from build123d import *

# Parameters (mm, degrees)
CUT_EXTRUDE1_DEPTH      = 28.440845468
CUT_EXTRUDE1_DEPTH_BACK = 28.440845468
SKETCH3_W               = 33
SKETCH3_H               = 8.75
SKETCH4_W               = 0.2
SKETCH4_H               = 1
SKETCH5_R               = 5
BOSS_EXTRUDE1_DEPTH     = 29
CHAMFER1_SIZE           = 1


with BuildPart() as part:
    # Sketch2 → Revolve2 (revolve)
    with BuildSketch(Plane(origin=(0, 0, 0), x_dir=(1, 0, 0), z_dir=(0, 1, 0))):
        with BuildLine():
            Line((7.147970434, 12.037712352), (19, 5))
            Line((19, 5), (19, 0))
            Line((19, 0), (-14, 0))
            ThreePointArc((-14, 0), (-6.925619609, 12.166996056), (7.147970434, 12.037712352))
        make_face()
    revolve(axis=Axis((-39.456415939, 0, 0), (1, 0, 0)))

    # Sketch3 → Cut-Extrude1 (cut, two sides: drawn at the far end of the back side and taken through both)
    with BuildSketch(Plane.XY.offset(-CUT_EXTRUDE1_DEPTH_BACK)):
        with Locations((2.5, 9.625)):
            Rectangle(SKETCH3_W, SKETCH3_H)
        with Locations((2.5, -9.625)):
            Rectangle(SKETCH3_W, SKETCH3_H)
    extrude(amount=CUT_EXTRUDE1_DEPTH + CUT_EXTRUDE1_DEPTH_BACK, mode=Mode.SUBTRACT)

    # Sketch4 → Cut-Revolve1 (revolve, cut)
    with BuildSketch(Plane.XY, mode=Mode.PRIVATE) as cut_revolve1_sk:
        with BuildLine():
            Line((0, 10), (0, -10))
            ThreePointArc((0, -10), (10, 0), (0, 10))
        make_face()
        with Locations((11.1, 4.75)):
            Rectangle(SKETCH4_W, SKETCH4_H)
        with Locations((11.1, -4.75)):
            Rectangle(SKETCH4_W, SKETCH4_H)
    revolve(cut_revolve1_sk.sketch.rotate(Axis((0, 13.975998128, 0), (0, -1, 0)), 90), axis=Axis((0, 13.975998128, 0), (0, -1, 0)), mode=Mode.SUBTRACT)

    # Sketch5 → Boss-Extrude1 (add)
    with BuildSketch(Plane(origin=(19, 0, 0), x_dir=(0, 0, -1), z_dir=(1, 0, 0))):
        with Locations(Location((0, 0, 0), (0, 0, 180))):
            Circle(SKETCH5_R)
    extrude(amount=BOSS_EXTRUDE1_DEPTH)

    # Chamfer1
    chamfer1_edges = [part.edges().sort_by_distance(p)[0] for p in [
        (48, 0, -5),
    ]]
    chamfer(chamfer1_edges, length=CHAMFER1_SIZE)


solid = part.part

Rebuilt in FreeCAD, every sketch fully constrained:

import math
import FreeCAD as App
import Part
import Sketcher
Q = App.Units.Quantity


def edges_at(feature, points):
    """Names of the edges that pass closest to the given points."""
    edges = feature.Shape.Edges
    near = lambda p: min(range(len(edges)), key=lambda i: edges[i].distToShape(Part.Vertex(*p))[0])
    return sorted({f"Edge{near(p) + 1}" for p in points})

doc = App.newDocument("Part")
body = doc.addObject("PartDesign::Body", "Body")

sketch1 = doc.addObject("Sketcher::SketchObject", "Sketch")
body.addObject(sketch1)
sketch1.AttachmentSupport = (doc.XZ_Plane, [""])
sketch1.MapMode = "FlatFace"
sketch1.addGeometry([
    Part.LineSegment(App.Vector(19, -5, 0), App.Vector(7, -12, 0)),
    Part.ArcOfCircle(Part.Circle(App.Vector(0, 0, 0), App.Vector(0, 0, 1), 14), math.radians(180), math.radians(301)),
    Part.LineSegment(App.Vector(-14, 0, 0), App.Vector(19, 0, 0)),
    Part.LineSegment(App.Vector(19, 0, 0), App.Vector(19, -5, 0)),
], False)
sketch1.addConstraint([
    Sketcher.Constraint("Tangent", 0, 2, 1, 2),
    Sketcher.Constraint("Coincident", 1, 1, 2, 1),
    Sketcher.Constraint("Coincident", 2, 2, 3, 1),
    Sketcher.Constraint("Coincident", 3, 2, 0, 1),
    Sketcher.Constraint("Horizontal", 2),
    Sketcher.Constraint("Vertical", 3),
    Sketcher.Constraint("Coincident", 1, 3, -1, 1),
    Sketcher.Constraint("PointOnObject", 1, 1, -1),
    Sketcher.Constraint("Radius", 1, Q("14 mm")),
    Sketcher.Constraint("DistanceX", 2, 1, 2, 2, Q("33 mm")),
    Sketcher.Constraint("DistanceY", 3, 2, 3, 1, Q("5 mm")),
])
revolution = doc.addObject("PartDesign::Revolution", "Revolution")
body.addObject(revolution)
revolution.Profile = sketch1
revolution.ReferenceAxis = (sketch1, ["H_Axis"])
revolution.Angle = 360

sketch2 = doc.addObject("Sketcher::SketchObject", "Sketch001")
body.addObject(sketch2)
sketch2.AttachmentSupport = (doc.XY_Plane, [""])
sketch2.MapMode = "FlatFace"
sketch2.addGeometry([
    Part.LineSegment(App.Vector(-14, 14, 0), App.Vector(-14, 5, 0)),
    Part.LineSegment(App.Vector(-14, 5, 0), App.Vector(19, 5, 0)),
    Part.LineSegment(App.Vector(19, 5, 0), App.Vector(19, 14, 0)),
    Part.LineSegment(App.Vector(19, 14, 0), App.Vector(-14, 14, 0)),
    Part.LineSegment(App.Vector(-14, -5, 0), App.Vector(-14, -14, 0)),
    Part.LineSegment(App.Vector(-14, -14, 0), App.Vector(19, -14, 0)),
    Part.LineSegment(App.Vector(19, -14, 0), App.Vector(19, -5, 0)),
    Part.LineSegment(App.Vector(19, -5, 0), App.Vector(-14, -5, 0)),
], False)
sketch2.addConstraint([
    Sketcher.Constraint("Coincident", 0, 2, 1, 1),
    Sketcher.Constraint("Coincident", 1, 2, 2, 1),
    Sketcher.Constraint("Coincident", 2, 2, 3, 1),
    Sketcher.Constraint("Coincident", 3, 2, 0, 1),
    Sketcher.Constraint("Coincident", 4, 2, 5, 1),
    Sketcher.Constraint("Coincident", 5, 2, 6, 1),
    Sketcher.Constraint("Coincident", 6, 2, 7, 1),
    Sketcher.Constraint("Coincident", 7, 2, 4, 1),
    Sketcher.Constraint("Vertical", 0),
    Sketcher.Constraint("Horizontal", 1),
    Sketcher.Constraint("Vertical", 2),
    Sketcher.Constraint("Horizontal", 3),
    Sketcher.Constraint("Vertical", 4),
    Sketcher.Constraint("Horizontal", 5),
    Sketcher.Constraint("Vertical", 6),
    Sketcher.Constraint("Horizontal", 7),
    Sketcher.Constraint("Symmetric", 3, 2, 4, 2, -1),
    Sketcher.Constraint("Symmetric", 1, 2, 6, 2, -1),
    Sketcher.Constraint("DistanceX", 1, 1, 1, 2, Q("33 mm")),
    Sketcher.Constraint("DistanceX", 0, 2, -1, 1, Q("14 mm")),
    Sketcher.Constraint("DistanceY", -1, 1, 2, 2, Q("14 mm")),
    Sketcher.Constraint("DistanceY", 0, 2, 0, 1, Q("8.75 mm")),
])
pocket1 = doc.addObject("PartDesign::Pocket", "Pocket")
body.addObject(pocket1)
pocket1.Profile = sketch2
pocket1.Type = "ThroughAll"
pocket1.Midplane = True

sketch3 = doc.addObject("Sketcher::SketchObject", "Sketch002")
body.addObject(sketch3)
sketch3.AttachmentSupport = (doc.XY_Plane, [""])
sketch3.MapMode = "FlatFace"
sketch3.addGeometry([
    Part.LineSegment(App.Vector(0, 10, 0), App.Vector(0, -10, 0)),
    Part.ArcOfCircle(Part.Circle(App.Vector(0, 0, 0), App.Vector(0, 0, 1), 10), math.radians(-90), math.radians(90)),
    Part.LineSegment(App.Vector(11, 5.25, 0), App.Vector(11, 4.25, 0)),
    Part.LineSegment(App.Vector(11, 4.25, 0), App.Vector(11.2, 4.25, 0)),
    Part.LineSegment(App.Vector(11.2, 4.25, 0), App.Vector(11.2, 5.25, 0)),
    Part.LineSegment(App.Vector(11.2, 5.25, 0), App.Vector(11, 5.25, 0)),
    Part.LineSegment(App.Vector(11, -4.25, 0), App.Vector(11, -5.25, 0)),
    Part.LineSegment(App.Vector(11, -5.25, 0), App.Vector(11.2, -5.25, 0)),
    Part.LineSegment(App.Vector(11.2, -5.25, 0), App.Vector(11.2, -4.25, 0)),
    Part.LineSegment(App.Vector(11.2, -4.25, 0), App.Vector(11, -4.25, 0)),
], False)
sketch3.addConstraint([
    Sketcher.Constraint("Coincident", 0, 1, 1, 2),
    Sketcher.Constraint("Coincident", 1, 1, 0, 2),
    Sketcher.Constraint("Coincident", 2, 2, 3, 1),
    Sketcher.Constraint("Coincident", 3, 2, 4, 1),
    Sketcher.Constraint("Coincident", 4, 2, 5, 1),
    Sketcher.Constraint("Coincident", 5, 2, 2, 1),
    Sketcher.Constraint("Coincident", 6, 2, 7, 1),
    Sketcher.Constraint("Coincident", 7, 2, 8, 1),
    Sketcher.Constraint("Coincident", 8, 2, 9, 1),
    Sketcher.Constraint("Coincident", 9, 2, 6, 1),
    Sketcher.Constraint("Vertical", 0),
    Sketcher.Constraint("Vertical", 2),
    Sketcher.Constraint("Horizontal", 3),
    Sketcher.Constraint("Vertical", 4),
    Sketcher.Constraint("Horizontal", 5),
    Sketcher.Constraint("Vertical", 6),
    Sketcher.Constraint("Horizontal", 7),
    Sketcher.Constraint("Vertical", 8),
    Sketcher.Constraint("Horizontal", 9),
    Sketcher.Constraint("Coincident", 1, 3, -1, 1),
    Sketcher.Constraint("Symmetric", 5, 2, 6, 2, -1),
    Sketcher.Constraint("Symmetric", 3, 2, 8, 2, -1),
    Sketcher.Constraint("PointOnObject", 0, 1, -2),
    Sketcher.Constraint("Radius", 1, Q("10 mm")),
    Sketcher.Constraint("DistanceY", 2, 2, 2, 1, Q("1 mm")),
    Sketcher.Constraint("DistanceX", 3, 1, 3, 2, Q("0.2 mm")),
    Sketcher.Constraint("DistanceX", -1, 1, 2, 2, Q("11 mm")),
    Sketcher.Constraint("DistanceY", 6, 2, 2, 2, Q("9.5 mm")),
])
groove = doc.addObject("PartDesign::Groove", "Groove")
body.addObject(groove)
groove.Profile = sketch3
groove.ReferenceAxis = (sketch3, ["V_Axis"])
groove.Angle = 360

sketch4 = doc.addObject("Sketcher::SketchObject", "Sketch003")
body.addObject(sketch4)
sketch4.AttachmentSupport = (doc.YZ_Plane, [""])
sketch4.MapMode = "FlatFace"
sketch4.AttachmentOffset = App.Placement(App.Vector(0, 0, 19), App.Rotation())
sketch4.addGeometry(Part.Circle(App.Vector(0, 0, 0), App.Vector(0, 0, 1), 5), False)
sketch4.addConstraint([
    Sketcher.Constraint("Coincident", 0, 3, -1, 1),
    Sketcher.Constraint("Diameter", 0, Q("10 mm")),
])
pad1 = doc.addObject("PartDesign::Pad", "Pad")
body.addObject(pad1)
pad1.Profile = sketch4
pad1.Length = 29
doc.recompute()

chamfer = doc.addObject("PartDesign::Chamfer", "Chamfer")
body.addObject(chamfer)
chamfer.Base = (pad1, edges_at(pad1, [(48, 0, -5)]))
chamfer.Size = 1

doc.recompute()
